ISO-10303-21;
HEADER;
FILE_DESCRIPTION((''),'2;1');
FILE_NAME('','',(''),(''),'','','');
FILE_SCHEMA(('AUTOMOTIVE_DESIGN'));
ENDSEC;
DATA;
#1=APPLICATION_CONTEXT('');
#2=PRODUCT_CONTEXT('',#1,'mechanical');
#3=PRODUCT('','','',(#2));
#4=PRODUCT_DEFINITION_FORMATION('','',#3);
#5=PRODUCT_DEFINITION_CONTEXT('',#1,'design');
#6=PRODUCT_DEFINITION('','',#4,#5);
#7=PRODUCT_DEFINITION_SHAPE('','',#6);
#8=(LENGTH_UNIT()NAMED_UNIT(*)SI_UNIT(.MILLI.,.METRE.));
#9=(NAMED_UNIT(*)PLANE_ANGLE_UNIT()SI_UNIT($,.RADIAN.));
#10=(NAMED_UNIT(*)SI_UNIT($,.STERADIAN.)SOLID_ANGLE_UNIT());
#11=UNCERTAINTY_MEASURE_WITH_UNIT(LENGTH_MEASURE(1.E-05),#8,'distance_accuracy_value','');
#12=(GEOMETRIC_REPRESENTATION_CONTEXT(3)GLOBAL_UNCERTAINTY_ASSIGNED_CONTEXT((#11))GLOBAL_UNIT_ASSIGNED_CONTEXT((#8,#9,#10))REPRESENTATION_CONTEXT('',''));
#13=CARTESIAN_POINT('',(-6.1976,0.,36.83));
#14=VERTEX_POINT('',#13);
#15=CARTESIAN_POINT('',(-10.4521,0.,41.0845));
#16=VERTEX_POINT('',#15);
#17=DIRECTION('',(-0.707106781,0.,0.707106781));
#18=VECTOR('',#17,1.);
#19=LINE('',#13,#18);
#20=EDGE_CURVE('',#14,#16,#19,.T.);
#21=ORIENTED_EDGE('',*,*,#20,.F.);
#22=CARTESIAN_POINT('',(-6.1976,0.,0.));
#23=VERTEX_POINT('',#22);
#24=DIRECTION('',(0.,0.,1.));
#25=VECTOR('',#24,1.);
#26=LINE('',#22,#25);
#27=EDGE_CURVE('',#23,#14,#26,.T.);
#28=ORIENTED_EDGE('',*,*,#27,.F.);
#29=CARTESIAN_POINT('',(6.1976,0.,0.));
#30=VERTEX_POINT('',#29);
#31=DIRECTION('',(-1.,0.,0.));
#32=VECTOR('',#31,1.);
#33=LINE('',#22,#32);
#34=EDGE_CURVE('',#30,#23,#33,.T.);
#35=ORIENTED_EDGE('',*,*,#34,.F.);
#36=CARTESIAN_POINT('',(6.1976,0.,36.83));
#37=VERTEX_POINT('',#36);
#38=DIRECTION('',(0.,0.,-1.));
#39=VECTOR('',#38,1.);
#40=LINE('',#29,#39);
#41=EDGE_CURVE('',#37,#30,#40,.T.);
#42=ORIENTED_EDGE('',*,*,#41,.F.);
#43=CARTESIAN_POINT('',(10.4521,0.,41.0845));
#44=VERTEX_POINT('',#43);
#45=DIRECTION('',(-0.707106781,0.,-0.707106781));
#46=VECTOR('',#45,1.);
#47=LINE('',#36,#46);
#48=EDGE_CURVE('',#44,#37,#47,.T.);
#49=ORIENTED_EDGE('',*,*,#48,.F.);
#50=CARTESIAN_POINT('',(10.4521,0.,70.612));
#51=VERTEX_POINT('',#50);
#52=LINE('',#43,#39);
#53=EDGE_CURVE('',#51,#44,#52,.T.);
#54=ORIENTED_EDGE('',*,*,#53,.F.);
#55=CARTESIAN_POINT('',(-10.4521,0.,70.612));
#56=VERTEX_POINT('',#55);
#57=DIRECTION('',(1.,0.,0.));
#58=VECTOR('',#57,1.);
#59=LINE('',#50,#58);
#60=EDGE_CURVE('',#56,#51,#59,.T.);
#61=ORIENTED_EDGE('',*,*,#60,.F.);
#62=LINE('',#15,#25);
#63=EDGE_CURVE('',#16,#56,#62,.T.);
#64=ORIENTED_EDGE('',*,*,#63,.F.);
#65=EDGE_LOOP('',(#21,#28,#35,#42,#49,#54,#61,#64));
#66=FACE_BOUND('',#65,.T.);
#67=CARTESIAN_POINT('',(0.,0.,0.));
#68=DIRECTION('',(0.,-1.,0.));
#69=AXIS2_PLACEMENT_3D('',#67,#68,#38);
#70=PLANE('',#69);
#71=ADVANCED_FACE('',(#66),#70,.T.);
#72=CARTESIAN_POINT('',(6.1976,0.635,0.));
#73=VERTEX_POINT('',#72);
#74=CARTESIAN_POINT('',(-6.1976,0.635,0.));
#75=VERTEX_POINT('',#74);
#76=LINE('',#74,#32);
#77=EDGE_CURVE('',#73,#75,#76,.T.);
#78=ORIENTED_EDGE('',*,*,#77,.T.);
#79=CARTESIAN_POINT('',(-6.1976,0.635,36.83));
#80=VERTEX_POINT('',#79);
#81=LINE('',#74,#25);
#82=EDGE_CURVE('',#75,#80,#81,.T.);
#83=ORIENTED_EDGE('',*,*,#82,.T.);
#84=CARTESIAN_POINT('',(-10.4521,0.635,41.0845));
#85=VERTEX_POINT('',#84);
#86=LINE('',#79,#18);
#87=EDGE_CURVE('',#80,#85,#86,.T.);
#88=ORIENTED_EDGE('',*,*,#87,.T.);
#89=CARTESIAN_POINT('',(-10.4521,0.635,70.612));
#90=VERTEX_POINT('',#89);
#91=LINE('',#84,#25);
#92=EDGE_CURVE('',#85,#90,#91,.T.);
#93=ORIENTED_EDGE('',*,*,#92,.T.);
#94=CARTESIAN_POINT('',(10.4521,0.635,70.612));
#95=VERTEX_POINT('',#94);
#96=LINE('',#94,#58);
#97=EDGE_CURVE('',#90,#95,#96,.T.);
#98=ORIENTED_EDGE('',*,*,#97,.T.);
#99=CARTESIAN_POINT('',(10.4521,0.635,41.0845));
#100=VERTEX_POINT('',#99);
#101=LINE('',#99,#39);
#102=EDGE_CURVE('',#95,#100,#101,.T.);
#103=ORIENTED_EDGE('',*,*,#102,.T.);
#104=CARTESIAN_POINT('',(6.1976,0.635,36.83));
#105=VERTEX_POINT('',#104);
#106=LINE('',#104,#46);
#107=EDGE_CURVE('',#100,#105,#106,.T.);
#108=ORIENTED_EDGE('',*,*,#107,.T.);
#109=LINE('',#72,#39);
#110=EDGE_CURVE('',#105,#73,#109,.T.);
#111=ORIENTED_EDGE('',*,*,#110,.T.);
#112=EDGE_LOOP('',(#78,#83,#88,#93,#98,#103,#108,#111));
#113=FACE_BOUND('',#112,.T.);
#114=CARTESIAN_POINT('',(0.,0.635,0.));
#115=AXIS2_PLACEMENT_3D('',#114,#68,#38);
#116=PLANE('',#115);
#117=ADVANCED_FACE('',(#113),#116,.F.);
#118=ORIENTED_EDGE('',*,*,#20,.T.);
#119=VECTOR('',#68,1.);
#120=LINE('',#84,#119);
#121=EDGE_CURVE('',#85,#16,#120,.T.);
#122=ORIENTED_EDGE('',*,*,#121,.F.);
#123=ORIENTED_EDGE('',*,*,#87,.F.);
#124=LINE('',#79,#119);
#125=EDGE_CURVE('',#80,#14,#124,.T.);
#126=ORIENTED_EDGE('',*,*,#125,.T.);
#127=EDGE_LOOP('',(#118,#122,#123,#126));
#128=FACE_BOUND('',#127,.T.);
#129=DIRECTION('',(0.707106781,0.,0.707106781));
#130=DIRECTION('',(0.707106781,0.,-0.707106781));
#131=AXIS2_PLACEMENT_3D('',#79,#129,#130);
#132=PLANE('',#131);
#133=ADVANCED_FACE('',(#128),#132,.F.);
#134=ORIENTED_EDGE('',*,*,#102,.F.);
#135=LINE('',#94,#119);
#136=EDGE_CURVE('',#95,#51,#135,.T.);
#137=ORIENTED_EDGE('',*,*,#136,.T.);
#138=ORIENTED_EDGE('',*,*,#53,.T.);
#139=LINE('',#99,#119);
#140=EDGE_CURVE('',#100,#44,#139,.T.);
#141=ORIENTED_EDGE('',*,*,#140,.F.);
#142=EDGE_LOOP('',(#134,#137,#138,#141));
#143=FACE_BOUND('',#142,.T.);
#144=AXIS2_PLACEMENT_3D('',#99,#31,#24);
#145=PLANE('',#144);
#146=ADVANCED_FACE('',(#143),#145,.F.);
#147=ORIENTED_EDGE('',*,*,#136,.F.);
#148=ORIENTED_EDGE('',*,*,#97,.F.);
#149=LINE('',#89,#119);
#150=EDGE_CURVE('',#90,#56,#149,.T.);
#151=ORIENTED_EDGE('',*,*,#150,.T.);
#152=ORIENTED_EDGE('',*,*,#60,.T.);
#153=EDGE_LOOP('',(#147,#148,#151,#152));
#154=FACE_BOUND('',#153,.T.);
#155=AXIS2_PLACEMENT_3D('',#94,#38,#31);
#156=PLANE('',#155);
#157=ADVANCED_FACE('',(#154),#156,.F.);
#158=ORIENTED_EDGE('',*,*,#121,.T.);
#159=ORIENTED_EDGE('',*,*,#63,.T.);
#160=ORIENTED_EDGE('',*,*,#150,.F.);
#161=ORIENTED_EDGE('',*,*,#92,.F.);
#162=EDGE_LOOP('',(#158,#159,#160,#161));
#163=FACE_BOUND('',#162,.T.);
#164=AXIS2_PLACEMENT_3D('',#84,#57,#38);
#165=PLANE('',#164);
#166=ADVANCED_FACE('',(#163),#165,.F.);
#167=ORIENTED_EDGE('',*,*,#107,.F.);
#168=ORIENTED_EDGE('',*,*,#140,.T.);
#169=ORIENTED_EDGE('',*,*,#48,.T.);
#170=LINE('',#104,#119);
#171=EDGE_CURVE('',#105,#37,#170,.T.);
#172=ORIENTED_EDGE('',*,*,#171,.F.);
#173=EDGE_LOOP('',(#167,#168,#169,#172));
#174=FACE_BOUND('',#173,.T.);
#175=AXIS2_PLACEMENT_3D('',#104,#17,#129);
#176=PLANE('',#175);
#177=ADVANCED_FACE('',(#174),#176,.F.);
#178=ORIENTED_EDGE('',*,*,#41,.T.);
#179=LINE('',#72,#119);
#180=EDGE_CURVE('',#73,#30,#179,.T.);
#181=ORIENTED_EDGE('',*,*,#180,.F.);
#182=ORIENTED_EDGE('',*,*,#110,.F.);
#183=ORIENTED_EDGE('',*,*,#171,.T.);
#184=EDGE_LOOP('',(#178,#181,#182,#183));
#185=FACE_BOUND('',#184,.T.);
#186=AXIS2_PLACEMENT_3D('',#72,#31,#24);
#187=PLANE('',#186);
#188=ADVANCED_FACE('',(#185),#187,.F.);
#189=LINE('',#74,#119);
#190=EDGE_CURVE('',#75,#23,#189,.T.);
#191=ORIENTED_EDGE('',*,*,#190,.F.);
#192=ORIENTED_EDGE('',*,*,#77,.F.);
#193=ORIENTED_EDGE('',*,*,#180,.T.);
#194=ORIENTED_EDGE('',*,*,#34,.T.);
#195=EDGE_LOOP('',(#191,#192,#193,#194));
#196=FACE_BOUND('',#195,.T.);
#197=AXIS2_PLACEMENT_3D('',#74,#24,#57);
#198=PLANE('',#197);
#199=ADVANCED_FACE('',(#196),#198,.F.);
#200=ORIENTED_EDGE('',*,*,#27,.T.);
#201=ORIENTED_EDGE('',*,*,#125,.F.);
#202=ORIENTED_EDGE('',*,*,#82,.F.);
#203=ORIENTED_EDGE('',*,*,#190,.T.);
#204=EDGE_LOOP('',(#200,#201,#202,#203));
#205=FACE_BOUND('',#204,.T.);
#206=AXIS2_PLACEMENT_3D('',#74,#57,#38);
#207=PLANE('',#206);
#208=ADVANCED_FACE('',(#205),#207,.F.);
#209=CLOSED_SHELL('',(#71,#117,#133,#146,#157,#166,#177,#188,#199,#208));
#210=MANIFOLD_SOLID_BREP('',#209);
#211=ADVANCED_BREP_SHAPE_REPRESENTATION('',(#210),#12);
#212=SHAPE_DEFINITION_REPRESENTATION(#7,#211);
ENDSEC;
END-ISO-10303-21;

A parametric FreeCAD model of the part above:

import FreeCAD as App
import Part
import Sketcher

V = App.Vector
Q = App.Units.Quantity

doc = App.newDocument("Part")
body = doc.addObject("PartDesign::Body", "Body")

# Sketch on XZ plane
sketch1 = body.newObject("Sketcher::SketchObject", "Sketch")
sketch1.AttachmentSupport = (doc.getObject("XZ_Plane"), [""])
sketch1.MapMode = "FlatFace"
sketch1.addGeometry([
    Part.LineSegment(V(6, 0, 0), V(-6, 0, 0)),  # 0
    Part.LineSegment(V(-6, 0, 0), V(-6, 37, 0)),  # 1
    Part.LineSegment(V(-6, 37, 0), V(-10, 41, 0)),  # 2
    Part.LineSegment(V(-10, 41, 0), V(-10, 71, 0)),  # 3
    Part.LineSegment(V(-10, 71, 0), V(10, 71, 0)),  # 4
    Part.LineSegment(V(10, 71, 0), V(10, 41, 0)),  # 5
    Part.LineSegment(V(10, 41, 0), V(6, 37, 0)),  # 6
    Part.LineSegment(V(6, 37, 0), V(6, 0, 0)),  # 7
], False)
sketch1.addConstraint([
    Sketcher.Constraint("Coincident", 0, 2, 1, 1),
    Sketcher.Constraint("Coincident", 1, 2, 2, 1),
    Sketcher.Constraint("Coincident", 2, 2, 3, 1),
    Sketcher.Constraint("Coincident", 3, 2, 4, 1),
    Sketcher.Constraint("Coincident", 4, 2, 5, 1),
    Sketcher.Constraint("Coincident", 5, 2, 6, 1),
    Sketcher.Constraint("Coincident", 6, 2, 7, 1),
    Sketcher.Constraint("Coincident", 7, 2, 0, 1),
    Sketcher.Constraint("Horizontal", 0),
    Sketcher.Constraint("Vertical", 1),
    Sketcher.Constraint("Vertical", 3),
    Sketcher.Constraint("Horizontal", 4),
    Sketcher.Constraint("Vertical", 5),
    Sketcher.Constraint("Vertical", 7),
    Sketcher.Constraint("Symmetric", 0, 2, 7, 2, -1, 1),
    Sketcher.Constraint("Symmetric", 2, 2, 5, 2, -2),
    Sketcher.Constraint("Perpendicular", 2, 6),
    Sketcher.Constraint("Horizontal", 1, 2, 6, 2),
    Sketcher.Constraint("DistanceY", 1, 1, 1, 2, Q("1.45 in")),
    Sketcher.Constraint("DistanceX", 0, 2, 0, 1, Q("0.488 in")),
    Sketcher.Constraint("DistanceX", 4, 1, 4, 2, Q("0.823 in")),
    Sketcher.Constraint("DistanceY", -1, 1, 3, 2, Q("2.78 in")),
])
pad1 = body.newObject("PartDesign::Pad", "Pad")
pad1.Profile = sketch1
pad1.Length = Q("0.025 in")
pad1.Reversed = True

doc.recompute()
